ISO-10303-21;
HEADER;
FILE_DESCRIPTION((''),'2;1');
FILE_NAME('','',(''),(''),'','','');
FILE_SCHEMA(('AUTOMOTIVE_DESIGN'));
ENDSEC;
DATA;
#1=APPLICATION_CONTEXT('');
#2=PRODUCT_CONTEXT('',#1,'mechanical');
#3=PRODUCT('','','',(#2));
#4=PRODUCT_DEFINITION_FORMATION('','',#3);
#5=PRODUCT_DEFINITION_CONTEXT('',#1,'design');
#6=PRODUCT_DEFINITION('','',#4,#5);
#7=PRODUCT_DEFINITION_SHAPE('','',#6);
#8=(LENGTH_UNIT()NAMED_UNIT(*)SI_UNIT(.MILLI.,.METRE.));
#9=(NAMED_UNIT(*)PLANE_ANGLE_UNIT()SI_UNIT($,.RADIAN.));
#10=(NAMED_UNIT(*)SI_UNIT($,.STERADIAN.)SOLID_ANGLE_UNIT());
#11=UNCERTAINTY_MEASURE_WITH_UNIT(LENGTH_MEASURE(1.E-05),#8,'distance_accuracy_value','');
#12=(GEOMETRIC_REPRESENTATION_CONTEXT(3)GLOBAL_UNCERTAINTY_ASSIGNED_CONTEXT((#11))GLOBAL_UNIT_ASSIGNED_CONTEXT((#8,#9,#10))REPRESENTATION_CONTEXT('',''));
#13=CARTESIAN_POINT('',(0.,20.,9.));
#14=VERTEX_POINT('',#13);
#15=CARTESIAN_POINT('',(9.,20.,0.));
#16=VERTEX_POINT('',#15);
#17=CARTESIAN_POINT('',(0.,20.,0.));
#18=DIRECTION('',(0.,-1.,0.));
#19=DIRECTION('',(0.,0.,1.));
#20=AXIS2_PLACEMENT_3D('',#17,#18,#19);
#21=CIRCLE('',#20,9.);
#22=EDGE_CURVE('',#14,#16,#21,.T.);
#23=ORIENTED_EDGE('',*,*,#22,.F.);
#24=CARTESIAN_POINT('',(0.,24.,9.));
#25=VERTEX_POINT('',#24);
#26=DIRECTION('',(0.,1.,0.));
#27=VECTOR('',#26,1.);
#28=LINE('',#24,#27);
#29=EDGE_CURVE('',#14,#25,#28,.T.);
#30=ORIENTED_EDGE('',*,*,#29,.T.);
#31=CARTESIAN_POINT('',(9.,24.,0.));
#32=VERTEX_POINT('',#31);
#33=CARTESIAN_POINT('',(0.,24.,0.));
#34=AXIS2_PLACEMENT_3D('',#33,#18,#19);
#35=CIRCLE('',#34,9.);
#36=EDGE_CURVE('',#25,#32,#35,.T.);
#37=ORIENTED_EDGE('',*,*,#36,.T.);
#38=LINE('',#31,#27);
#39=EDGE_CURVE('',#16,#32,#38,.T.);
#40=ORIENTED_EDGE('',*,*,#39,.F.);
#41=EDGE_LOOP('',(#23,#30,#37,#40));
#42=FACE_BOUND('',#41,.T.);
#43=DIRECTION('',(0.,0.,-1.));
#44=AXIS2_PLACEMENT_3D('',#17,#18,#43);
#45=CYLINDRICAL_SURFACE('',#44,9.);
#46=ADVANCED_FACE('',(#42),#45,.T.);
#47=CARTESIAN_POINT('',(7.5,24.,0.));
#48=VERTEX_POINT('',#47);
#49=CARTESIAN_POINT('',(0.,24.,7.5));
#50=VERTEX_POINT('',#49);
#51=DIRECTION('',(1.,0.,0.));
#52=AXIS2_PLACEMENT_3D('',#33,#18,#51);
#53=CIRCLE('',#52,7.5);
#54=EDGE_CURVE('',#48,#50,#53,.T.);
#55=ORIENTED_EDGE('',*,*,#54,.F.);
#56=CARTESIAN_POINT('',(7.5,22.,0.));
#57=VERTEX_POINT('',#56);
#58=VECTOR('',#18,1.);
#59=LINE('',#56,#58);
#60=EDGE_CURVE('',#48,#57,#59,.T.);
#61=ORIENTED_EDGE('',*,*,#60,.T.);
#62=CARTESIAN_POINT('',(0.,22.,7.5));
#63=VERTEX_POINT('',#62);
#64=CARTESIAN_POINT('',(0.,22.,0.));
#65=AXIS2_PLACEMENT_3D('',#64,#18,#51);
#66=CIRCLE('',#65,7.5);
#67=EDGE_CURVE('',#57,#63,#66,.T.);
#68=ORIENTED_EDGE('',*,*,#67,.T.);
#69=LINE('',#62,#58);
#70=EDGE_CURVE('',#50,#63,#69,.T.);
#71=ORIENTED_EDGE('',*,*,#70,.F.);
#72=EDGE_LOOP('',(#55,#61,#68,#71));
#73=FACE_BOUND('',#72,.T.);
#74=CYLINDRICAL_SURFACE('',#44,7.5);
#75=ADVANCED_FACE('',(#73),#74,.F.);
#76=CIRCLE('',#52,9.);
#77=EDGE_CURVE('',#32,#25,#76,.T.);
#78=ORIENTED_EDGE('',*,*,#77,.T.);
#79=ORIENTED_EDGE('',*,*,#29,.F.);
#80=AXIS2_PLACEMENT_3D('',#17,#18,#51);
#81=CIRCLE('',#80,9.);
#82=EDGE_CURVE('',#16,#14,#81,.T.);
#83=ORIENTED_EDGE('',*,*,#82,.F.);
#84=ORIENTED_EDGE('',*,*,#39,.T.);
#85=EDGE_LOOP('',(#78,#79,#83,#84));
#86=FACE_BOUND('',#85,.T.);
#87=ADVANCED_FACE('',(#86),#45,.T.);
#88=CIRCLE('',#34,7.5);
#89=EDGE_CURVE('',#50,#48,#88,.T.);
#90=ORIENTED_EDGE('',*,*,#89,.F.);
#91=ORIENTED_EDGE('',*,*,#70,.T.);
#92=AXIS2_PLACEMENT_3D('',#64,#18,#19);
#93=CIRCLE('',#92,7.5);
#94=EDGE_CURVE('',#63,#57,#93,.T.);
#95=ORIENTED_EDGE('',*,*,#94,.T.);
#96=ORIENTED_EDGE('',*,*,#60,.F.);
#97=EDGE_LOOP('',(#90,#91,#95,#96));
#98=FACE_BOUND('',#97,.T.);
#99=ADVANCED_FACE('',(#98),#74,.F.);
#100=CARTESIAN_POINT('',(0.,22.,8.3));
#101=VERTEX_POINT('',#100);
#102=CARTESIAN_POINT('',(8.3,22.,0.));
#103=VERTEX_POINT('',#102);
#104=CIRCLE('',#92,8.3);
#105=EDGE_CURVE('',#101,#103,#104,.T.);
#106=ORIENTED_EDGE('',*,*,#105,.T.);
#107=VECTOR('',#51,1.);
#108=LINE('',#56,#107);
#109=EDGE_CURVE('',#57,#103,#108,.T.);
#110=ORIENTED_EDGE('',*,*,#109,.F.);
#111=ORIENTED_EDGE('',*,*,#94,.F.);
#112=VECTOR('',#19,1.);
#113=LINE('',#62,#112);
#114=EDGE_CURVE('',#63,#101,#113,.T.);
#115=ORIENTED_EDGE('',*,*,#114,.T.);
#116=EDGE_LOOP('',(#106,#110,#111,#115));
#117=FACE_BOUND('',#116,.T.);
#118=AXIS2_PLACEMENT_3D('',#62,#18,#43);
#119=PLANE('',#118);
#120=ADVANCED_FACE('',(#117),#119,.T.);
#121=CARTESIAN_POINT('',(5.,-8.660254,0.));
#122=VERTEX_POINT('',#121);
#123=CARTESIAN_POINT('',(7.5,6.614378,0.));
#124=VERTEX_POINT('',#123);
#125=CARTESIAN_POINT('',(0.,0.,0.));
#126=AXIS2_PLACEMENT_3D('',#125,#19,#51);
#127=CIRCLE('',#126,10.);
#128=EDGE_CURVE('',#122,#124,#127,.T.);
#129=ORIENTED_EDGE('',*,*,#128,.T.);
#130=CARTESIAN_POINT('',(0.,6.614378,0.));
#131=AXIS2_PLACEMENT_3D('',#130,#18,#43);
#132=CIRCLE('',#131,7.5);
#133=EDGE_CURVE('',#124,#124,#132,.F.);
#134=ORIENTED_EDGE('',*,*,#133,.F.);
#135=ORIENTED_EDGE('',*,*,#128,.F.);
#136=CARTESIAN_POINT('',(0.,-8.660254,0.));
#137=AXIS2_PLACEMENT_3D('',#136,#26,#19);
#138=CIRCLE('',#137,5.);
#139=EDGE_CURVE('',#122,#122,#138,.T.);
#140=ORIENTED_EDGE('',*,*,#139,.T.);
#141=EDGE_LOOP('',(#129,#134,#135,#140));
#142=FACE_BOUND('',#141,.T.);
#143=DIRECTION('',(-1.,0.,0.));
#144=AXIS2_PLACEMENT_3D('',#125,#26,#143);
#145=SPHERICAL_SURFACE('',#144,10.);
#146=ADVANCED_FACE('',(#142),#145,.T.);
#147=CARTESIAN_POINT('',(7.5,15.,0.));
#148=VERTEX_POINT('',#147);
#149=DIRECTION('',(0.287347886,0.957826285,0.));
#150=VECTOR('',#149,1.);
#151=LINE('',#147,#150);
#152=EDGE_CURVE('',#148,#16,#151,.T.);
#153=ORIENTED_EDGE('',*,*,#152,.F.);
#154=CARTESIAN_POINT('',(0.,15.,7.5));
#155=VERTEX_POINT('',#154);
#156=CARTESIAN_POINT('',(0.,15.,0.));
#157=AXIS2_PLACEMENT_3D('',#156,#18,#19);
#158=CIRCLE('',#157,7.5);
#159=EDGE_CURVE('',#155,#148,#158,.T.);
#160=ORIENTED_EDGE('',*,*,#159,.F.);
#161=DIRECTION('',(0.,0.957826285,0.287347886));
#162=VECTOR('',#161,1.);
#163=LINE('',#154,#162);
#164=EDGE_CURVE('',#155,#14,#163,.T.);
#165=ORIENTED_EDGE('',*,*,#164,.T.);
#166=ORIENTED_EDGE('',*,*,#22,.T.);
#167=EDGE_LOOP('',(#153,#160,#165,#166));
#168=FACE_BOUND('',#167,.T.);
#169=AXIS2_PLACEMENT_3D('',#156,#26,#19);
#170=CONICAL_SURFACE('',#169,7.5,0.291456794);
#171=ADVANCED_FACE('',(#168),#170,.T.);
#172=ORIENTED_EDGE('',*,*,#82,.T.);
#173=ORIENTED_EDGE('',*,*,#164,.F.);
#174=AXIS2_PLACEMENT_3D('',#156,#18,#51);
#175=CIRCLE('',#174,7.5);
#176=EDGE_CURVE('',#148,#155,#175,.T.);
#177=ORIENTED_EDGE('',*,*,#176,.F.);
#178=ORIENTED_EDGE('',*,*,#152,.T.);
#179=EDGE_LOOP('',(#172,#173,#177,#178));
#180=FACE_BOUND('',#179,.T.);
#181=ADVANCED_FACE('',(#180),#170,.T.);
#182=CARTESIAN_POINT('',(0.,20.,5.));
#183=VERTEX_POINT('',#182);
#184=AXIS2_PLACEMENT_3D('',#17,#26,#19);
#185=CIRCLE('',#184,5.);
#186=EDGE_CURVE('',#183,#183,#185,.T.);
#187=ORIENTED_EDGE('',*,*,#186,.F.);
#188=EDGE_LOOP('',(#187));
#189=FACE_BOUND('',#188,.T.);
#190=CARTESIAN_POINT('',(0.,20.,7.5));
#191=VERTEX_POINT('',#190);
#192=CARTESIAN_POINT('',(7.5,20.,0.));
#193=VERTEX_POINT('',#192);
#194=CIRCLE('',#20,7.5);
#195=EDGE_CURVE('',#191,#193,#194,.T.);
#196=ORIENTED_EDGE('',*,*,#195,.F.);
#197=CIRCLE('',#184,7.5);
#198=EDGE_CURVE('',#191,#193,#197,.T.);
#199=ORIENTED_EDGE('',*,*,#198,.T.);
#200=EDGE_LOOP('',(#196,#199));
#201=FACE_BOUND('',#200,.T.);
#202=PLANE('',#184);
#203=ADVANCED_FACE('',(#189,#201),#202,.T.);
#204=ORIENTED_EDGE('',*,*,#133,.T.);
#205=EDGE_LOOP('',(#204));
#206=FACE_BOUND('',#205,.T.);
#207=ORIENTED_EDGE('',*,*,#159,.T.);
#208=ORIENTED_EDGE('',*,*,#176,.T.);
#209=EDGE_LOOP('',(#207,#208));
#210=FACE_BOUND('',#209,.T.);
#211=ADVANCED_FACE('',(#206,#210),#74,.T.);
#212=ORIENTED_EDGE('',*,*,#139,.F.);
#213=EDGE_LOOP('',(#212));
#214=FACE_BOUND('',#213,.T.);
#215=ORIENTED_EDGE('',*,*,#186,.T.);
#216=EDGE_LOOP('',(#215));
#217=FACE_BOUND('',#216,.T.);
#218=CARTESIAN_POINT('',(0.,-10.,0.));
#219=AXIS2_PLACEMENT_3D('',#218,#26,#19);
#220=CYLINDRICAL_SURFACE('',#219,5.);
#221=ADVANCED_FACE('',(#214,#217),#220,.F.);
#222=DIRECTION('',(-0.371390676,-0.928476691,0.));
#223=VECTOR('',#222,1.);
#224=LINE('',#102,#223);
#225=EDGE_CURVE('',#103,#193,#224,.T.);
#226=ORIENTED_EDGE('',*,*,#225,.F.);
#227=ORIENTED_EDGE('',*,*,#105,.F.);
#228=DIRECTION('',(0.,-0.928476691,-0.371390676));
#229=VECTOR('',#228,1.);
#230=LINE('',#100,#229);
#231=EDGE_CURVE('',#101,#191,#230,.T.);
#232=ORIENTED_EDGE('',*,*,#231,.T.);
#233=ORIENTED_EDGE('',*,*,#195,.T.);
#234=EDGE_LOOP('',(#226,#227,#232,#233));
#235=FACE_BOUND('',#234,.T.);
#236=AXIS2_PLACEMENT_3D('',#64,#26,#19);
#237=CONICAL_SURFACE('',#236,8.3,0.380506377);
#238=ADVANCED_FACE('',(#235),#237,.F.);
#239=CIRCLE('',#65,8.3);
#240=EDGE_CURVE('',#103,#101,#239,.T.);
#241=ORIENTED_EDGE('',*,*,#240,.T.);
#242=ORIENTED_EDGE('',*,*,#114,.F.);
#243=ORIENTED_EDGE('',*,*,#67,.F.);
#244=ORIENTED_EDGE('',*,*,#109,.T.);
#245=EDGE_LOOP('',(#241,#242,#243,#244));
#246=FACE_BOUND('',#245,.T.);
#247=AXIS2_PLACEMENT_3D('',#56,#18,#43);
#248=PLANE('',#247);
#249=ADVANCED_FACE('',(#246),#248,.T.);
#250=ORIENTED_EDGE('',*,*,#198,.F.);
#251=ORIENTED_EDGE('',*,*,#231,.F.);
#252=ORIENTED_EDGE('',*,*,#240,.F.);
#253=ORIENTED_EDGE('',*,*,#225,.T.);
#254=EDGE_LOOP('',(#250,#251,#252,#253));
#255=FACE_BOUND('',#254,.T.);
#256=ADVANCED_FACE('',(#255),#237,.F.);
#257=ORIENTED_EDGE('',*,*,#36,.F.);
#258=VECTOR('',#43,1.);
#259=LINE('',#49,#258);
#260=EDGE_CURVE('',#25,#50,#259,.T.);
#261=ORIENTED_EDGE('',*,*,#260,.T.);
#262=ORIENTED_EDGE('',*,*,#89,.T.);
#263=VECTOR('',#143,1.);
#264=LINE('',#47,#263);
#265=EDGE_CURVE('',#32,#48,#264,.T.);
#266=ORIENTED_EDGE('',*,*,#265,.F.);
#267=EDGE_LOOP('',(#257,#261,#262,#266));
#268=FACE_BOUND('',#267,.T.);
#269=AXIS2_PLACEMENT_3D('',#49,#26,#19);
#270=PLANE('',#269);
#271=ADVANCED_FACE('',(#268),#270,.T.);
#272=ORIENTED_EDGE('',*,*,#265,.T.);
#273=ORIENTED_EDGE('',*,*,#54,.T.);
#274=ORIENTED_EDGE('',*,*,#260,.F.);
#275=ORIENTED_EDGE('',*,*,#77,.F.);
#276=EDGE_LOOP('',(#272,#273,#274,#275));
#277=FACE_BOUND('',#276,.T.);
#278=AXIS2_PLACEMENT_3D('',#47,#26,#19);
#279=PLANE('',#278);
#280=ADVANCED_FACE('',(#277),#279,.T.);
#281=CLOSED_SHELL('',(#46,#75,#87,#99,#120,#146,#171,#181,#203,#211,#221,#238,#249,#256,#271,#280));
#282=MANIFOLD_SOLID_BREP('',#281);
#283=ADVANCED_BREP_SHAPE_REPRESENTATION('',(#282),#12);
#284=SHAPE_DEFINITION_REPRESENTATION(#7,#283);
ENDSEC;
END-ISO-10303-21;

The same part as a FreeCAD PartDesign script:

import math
import FreeCAD as App
import Part
import Sketcher

doc = App.newDocument("Part")
params = doc.addObject("Spreadsheet::Sheet", "Params")
for row, (alias, value) in enumerate([
    ("sketch1_radius", "10 mm"),
    ("sketch2_diameter", "20 mm"),
    ("sketch3_diameter", "15 mm"),
    ("pad1_length", "20 mm"),
    ("sketch4_height", "5 mm"),
    ("sketch4_height2", "4 mm"),
    ("sketch4_height3", "2 mm"),
    ("sketch4_width", "0.8 mm"),
    ("sketch4_width2", "1.5 mm"),
    ("sketch5_radius", "7.5 mm"),
    ("sketch6_diameter", "10 mm"),
], start=1):
    params.set(f"A{row}", alias)
    params.set(f"B{row}", "=" + value)
    params.setAlias(f"B{row}", alias)

body = doc.addObject("PartDesign::Body", "Body")

sketch1 = body.newObject("Sketcher::SketchObject", "Sketch")
sketch1.AttachmentSupport = (doc.getObject("XY_Plane"), [""])
sketch1.MapMode = "FlatFace"
sketch1.addGeometry([
    Part.LineSegment(App.Vector(0, 10, 0), App.Vector(0, -10, 0)),
    Part.ArcOfCircle(Part.Circle(App.Vector(0, 0, 0), App.Vector(0, 0, 1), 10), math.radians(-90), math.radians(90)),
], False)
sketch1.addConstraint([
    Sketcher.Constraint("Coincident", 0, 1, 1, 2),
    Sketcher.Constraint("Coincident", 1, 1, 0, 2),
    Sketcher.Constraint("Vertical", 0),
    Sketcher.Constraint("Coincident", 1, 3, -1, 1),
    Sketcher.Constraint("PointOnObject", 0, 1, -2),
    Sketcher.Constraint("Radius", 1, 10.0),
])
sketch1.setExpression("Constraints[5]", "Params.sketch1_radius")

sketch2 = body.newObject("Sketcher::SketchObject", "Sketch001")
sketch2.AttachmentSupport = (doc.getObject("XZ_Plane"), [""])
sketch2.MapMode = "FlatFace"
sketch2.addGeometry(Part.Circle(App.Vector(0, 0, 0), App.Vector(0, 0, 1), 10), False)
sketch2.addConstraint([
    Sketcher.Constraint("Coincident", 0, 3, -1, 1),
    Sketcher.Constraint("Diameter", 0, 20.0),
])
sketch2.setExpression("Constraints[1]", "Params.sketch2_diameter")
doc.recompute()

additivepipe = body.newObject("PartDesign::AdditivePipe", "AdditivePipe")
additivepipe.Profile = sketch1
additivepipe.Spine = (sketch2, ["Edge1"])

sketch3 = body.newObject("Sketcher::SketchObject", "Sketch002")
sketch3.AttachmentSupport = (doc.getObject("XZ_Plane"), [""])
sketch3.MapMode = "FlatFace"
sketch3.addGeometry(Part.Circle(App.Vector(0, 0, 0), App.Vector(0, 0, 1), 8), False)
sketch3.addConstraint([
    Sketcher.Constraint("Coincident", 0, 3, -1, 1),
    Sketcher.Constraint("Diameter", 0, 15.0),
])
sketch3.setExpression("Constraints[1]", "Params.sketch3_diameter")
pad1 = body.newObject("PartDesign::Pad", "Pad")
pad1.Profile = sketch3
pad1.setExpression("Length", "Params.pad1_length")
pad1.Reversed = True

sketch4 = body.newObject("Sketcher::SketchObject", "Sketch003")
sketch4.AttachmentSupport = (doc.getObject("XY_Plane"), [""])
sketch4.MapMode = "FlatFace"
sketch4.addGeometry([
    Part.LineSegment(App.Vector(7.5, 22, 0), App.Vector(8.3, 22, 0)),
    Part.LineSegment(App.Vector(8.3, 22, 0), App.Vector(7.5, 20, 0)),
    Part.LineSegment(App.Vector(7.5, 20, 0), App.Vector(7.5, 15, 0)),
    Part.LineSegment(App.Vector(7.5, 15, 0), App.Vector(9, 20, 0)),
    Part.LineSegment(App.Vector(9, 20, 0), App.Vector(9, 24, 0)),
    Part.LineSegment(App.Vector(9, 24, 0), App.Vector(7.5, 24, 0)),
    Part.LineSegment(App.Vector(7.5, 24, 0), App.Vector(7.5, 22, 0)),
], False)
sketch4.addConstraint([
    Sketcher.Constraint("Coincident", 0, 2, 1, 1),
    Sketcher.Constraint("Coincident", 1, 2, 2, 1),
    Sketcher.Constraint("Coincident", 2, 2, 3, 1),
    Sketcher.Constraint("Coincident", 3, 2, 4, 1),
    Sketcher.Constraint("Coincident", 4, 2, 5, 1),
    Sketcher.Constraint("Coincident", 5, 2, 6, 1),
    Sketcher.Constraint("Coincident", 6, 2, 0, 1),
    Sketcher.Constraint("Horizontal", 0),
    Sketcher.Constraint("Vertical", 2),
    Sketcher.Constraint("Vertical", 4),
    Sketcher.Constraint("Horizontal", 5),
    Sketcher.Constraint("Vertical", 6),
    Sketcher.Constraint("Horizontal", 1, 2, 3, 2),
    Sketcher.Constraint("Vertical", 2, 2, 5, 2),
    Sketcher.Constraint("DistanceY", 2, 2, 2, 1, 5.0),
    Sketcher.Constraint("DistanceY", 4, 1, 4, 2, 4.0),
    Sketcher.Constraint("DistanceY", 6, 2, 6, 1, 2.0),
    Sketcher.Constraint("DistanceX", 0, 1, 0, 2, 0.8),
    Sketcher.Constraint("DistanceX", 5, 2, 5, 1, 1.5),
    Sketcher.Constraint("DistanceY", -1, 1, 0, 2, 22.0),
    Sketcher.Constraint("DistanceX", -1, 1, 3, 2, 9.0),
])
sketch4.setExpression("Constraints[14]", "Params.sketch4_height")
sketch4.setExpression("Constraints[15]", "Params.sketch4_height2")
sketch4.setExpression("Constraints[16]", "Params.sketch4_height3")
sketch4.setExpression("Constraints[17]", "Params.sketch4_width")
sketch4.setExpression("Constraints[18]", "Params.sketch4_width2")

sketch5 = body.newObject("Sketcher::SketchObject", "Sketch004")
sketch5.AttachmentSupport = (doc.getObject("XZ_Plane"), [""])
sketch5.MapMode = "FlatFace"
sketch5.AttachmentOffset = App.Placement(App.Vector(0, 0, -20), App.Rotation())
sketch5.addGeometry([
    Part.ArcOfCircle(Part.Circle(App.Vector(0, 0, 0), App.Vector(0, 0, 1), 8), math.radians(0), math.radians(90)),
    Part.ArcOfCircle(Part.Circle(App.Vector(0, 0, 0), App.Vector(0, 0, 1), 8), math.radians(-90), math.radians(0)),
    Part.ArcOfCircle(Part.Circle(App.Vector(0, 0, 0), App.Vector(0, 0, 1), 8), math.radians(180), math.radians(270)),
    Part.ArcOfCircle(Part.Circle(App.Vector(0, 0, 0), App.Vector(0, 0, 1), 8), math.radians(90), math.radians(180)),
], False)
sketch5.addConstraint([
    Sketcher.Constraint("Tangent", 0, 1, 1, 2),
    Sketcher.Constraint("Tangent", 1, 1, 2, 2),
    Sketcher.Constraint("Tangent", 2, 1, 3, 2),
    Sketcher.Constraint("Tangent", 3, 1, 0, 2),
    Sketcher.Constraint("Coincident", 0, 3, -1, 1),
    Sketcher.Constraint("Equal", 0, 1),
    Sketcher.Constraint("PointOnObject", 0, 1, -1),
    Sketcher.Constraint("PointOnObject", 1, 1, -2),
    Sketcher.Constraint("PointOnObject", 2, 1, -1),
    Sketcher.Constraint("PointOnObject", 3, 1, -2),
    Sketcher.Constraint("Radius", 0, 7.5),
])
sketch5.setExpression("Constraints[10]", "Params.sketch5_radius")
doc.recompute()

additivepipe2 = body.newObject("PartDesign::AdditivePipe", "AdditivePipe001")
additivepipe2.Profile = sketch4
additivepipe2.Spine = (sketch5, ["Edge1", "Edge2", "Edge3", "Edge4"])

sketch6 = body.newObject("Sketcher::SketchObject", "Sketch005")
sketch6.AttachmentSupport = (doc.getObject("XZ_Plane"), [""])
sketch6.MapMode = "FlatFace"
sketch6.AttachmentOffset = App.Placement(App.Vector(0, 0, -20), App.Rotation())
sketch6.addGeometry(Part.Circle(App.Vector(0, 0, 0), App.Vector(0, 0, 1), 5), False)
sketch6.addConstraint([
    Sketcher.Constraint("Coincident", 0, 3, -1, 1),
    Sketcher.Constraint("Diameter", 0, 10.0),
])
sketch6.setExpression("Constraints[1]", "Params.sketch6_diameter")
pocket1 = body.newObject("PartDesign::Pocket", "Pocket")
pocket1.Profile = sketch6
pocket1.Type = "ThroughAll"
pocket1.Reversed = True

doc.recompute()
